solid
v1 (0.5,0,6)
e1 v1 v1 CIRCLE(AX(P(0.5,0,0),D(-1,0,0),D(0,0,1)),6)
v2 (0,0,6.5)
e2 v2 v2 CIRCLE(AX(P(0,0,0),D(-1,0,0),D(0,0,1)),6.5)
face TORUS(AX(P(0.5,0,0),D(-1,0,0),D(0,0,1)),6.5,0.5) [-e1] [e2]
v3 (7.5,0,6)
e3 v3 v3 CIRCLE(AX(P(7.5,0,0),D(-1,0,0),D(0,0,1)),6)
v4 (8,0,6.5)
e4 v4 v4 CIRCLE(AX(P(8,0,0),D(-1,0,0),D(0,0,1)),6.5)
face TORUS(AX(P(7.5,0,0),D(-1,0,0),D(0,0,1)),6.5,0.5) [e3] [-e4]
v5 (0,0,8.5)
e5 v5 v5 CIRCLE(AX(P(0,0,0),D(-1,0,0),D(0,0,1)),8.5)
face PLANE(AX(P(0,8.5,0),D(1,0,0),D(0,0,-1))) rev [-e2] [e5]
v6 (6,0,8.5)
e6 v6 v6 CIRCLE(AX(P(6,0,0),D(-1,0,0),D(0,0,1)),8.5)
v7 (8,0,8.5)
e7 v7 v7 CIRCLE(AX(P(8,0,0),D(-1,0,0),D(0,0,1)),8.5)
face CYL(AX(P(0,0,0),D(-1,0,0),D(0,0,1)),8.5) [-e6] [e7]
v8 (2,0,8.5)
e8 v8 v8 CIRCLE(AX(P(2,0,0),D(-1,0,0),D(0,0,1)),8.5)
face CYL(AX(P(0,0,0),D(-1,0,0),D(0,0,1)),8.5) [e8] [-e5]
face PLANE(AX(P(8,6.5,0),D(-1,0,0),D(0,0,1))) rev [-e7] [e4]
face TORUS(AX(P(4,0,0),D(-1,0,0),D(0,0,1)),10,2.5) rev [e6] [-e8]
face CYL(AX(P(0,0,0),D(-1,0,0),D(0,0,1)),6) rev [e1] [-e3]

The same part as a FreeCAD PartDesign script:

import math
import FreeCAD as App
import Part
import Sketcher
Q = App.Units.Quantity

doc = App.newDocument("Part")
body = doc.addObject("PartDesign::Body", "Body")

# Sketch on XY plane
sketch1 = doc.addObject("Sketcher::SketchObject", "Sketch")
body.addObject(sketch1)
sketch1.AttachmentSupport = (doc.XY_Plane, [""])
sketch1.MapMode = "FlatFace"
sketch1.addGeometry([
    Part.LineSegment(App.Vector(8, 8.5, 0), App.Vector(6, 8.5, 0)),  # 0
    Part.ArcOfCircle(Part.Circle(App.Vector(4, 10, 0), App.Vector(0, 0, 1), 2.5), math.radians(-143), math.radians(-37)),  # 1
    Part.LineSegment(App.Vector(2, 8.5, 0), App.Vector(0, 8.5, 0)),  # 2
    Part.LineSegment(App.Vector(0, 8.5, 0), App.Vector(0, 6.5, 0)),  # 3
    Part.ArcOfCircle(Part.Circle(App.Vector(0.5, 6.5, 0), App.Vector(0, 0, 1), 0.5), math.radians(180), math.radians(270)),  # 4
    Part.LineSegment(App.Vector(0.5, 6, 0), App.Vector(7.5, 6, 0)),  # 5
    Part.ArcOfCircle(Part.Circle(App.Vector(7.5, 6.5, 0), App.Vector(0, 0, 1), 0.5), math.radians(-90), math.radians(0)),  # 6
    Part.LineSegment(App.Vector(8, 6.5, 0), App.Vector(8, 8.5, 0)),  # 7
], False)
sketch1.addConstraint([
    Sketcher.Constraint("Coincident", 0, 2, 1, 2),
    Sketcher.Constraint("Coincident", 1, 1, 2, 1),
    Sketcher.Constraint("Coincident", 2, 2, 3, 1),
    Sketcher.Constraint("Tangent", 3, 2, 4, 1),
    Sketcher.Constraint("Tangent", 4, 2, 5, 1),
    Sketcher.Constraint("Tangent", 5, 2, 6, 1),
    Sketcher.Constraint("Tangent", 6, 2, 7, 1),
    Sketcher.Constraint("Coincident", 7, 2, 0, 1),
    Sketcher.Constraint("Horizontal", 0),
    Sketcher.Constraint("Horizontal", 2),
    Sketcher.Constraint("Vertical", 3),
    Sketcher.Constraint("Horizontal", 5),
    Sketcher.Constraint("Vertical", 7),
    Sketcher.Constraint("Equal", 4, 6),
    Sketcher.Constraint("PointOnObject", 2, 2, -2),
    Sketcher.Constraint("Horizontal", 0, 2, 1, 1),
    Sketcher.Constraint("Equal", 0, 2),
    Sketcher.Constraint("Equal", 2, 3),
    Sketcher.Constraint("Radius", 1, Q("2.5 mm")),
    Sketcher.Constraint("Radius", 4, Q("0.5 mm")),
    Sketcher.Constraint("DistanceX", 0, 2, 0, 1, Q("2 mm")),
    Sketcher.Constraint("DistanceX", 5, 1, 5, 2, Q("7 mm")),
    Sketcher.Constraint("DistanceY", -1, 1, 1, 3, Q("10 mm")),
])
revolution = doc.addObject("PartDesign::Revolution", "Revolution")
body.addObject(revolution)
revolution.Profile = sketch1
revolution.ReferenceAxis = (sketch1, ["H_Axis"])
revolution.Angle = 360

doc.recompute()
